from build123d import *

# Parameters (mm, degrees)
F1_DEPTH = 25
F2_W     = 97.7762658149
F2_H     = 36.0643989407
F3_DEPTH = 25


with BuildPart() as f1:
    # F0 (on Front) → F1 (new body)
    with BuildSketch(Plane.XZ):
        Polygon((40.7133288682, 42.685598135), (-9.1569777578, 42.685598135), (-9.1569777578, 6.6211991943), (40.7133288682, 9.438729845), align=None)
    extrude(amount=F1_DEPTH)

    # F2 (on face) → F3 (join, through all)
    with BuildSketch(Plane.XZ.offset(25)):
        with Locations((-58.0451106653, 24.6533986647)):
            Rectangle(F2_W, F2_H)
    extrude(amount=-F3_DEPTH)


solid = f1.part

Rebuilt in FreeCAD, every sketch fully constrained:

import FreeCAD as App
import Part
import Sketcher
from FreeCAD import Vector
Q = App.Units.Quantity


def add_polygon(sketch, points):
    """Adds a closed chain of lines whose ends are joined by coincident constraints."""
    first, n = sketch.GeometryCount, len(points)
    for a, b in zip(points, points[1:] + points[:1]):
        sketch.addGeometry(Part.LineSegment(App.Vector(*a, 0), App.Vector(*b, 0)), False)
    for i in range(n):
        sketch.addConstraint(Sketcher.Constraint("Coincident", first + i, 2, first + (i + 1) % n, 1))

doc = App.newDocument("Part")
body = doc.addObject("PartDesign::Body", "Body")

# Sketch on XZ plane
sketch1 = doc.addObject("Sketcher::SketchObject", "Sketch")
body.addObject(sketch1)
sketch1.AttachmentSupport = (doc.XZ_Plane, [""])
sketch1.MapMode = "FlatFace"
add_polygon(sketch1, [(41, 43), (-9, 43), (-9, 7), (41, 9)])  # lines 0-3
sketch1.addConstraint([
    Sketcher.Constraint("Horizontal", 0),
    Sketcher.Constraint("Vertical", 1),
    Sketcher.Constraint("Vertical", 3),
    Sketcher.Constraint("DistanceY", 1, 2, 1, 1, Q("36.064399 mm")),
    Sketcher.Constraint("DistanceY", 3, 1, 3, 2, Q("33.246868 mm")),
    Sketcher.Constraint("DistanceY", -1, 1, 0, 2, Q("42.685598 mm")),
    Sketcher.Constraint("DistanceX", 0, 2, 0, 1, Q("49.870307 mm")),
    Sketcher.Constraint("DistanceX", -1, 1, 2, 2, Q("40.713329 mm")),
])
pad1 = doc.addObject("PartDesign::Pad", "Pad")
body.addObject(pad1)
pad1.Profile = sketch1
pad1.Length = 25

# Sketch on XZ plane
sketch2 = doc.addObject("Sketcher::SketchObject", "Sketch001")
body.addObject(sketch2)
sketch2.AttachmentSupport = (doc.XZ_Plane, [""])
sketch2.MapMode = "FlatFace"
sketch2.AttachmentOffset = App.Placement(Vector(0, 0, 25), App.Rotation())
add_polygon(sketch2, [(-107, 43), (-107, 7), (-9, 7), (-9, 43)])  # lines 0-3
sketch2.addConstraint([
    Sketcher.Constraint("Vertical", 0),
    Sketcher.Constraint("Horizontal", 1),
    Sketcher.Constraint("Vertical", 2),
    Sketcher.Constraint("Horizontal", 3),
    Sketcher.Constraint("DistanceY", 0, 2, 0, 1, Q("36.064399 mm")),
    Sketcher.Constraint("DistanceY", -1, 1, 0, 2, Q("6.621199 mm")),
    Sketcher.Constraint("DistanceX", 1, 1, 1, 2, Q("97.776266 mm")),
    Sketcher.Constraint("DistanceX", 0, 2, -1, 1, Q("106.933244 mm")),
])
pad2 = doc.addObject("PartDesign::Pad", "Pad001")
body.addObject(pad2)
pad2.Profile = sketch2
pad2.Length = 25
pad2.Reversed = True

doc.recompute()
